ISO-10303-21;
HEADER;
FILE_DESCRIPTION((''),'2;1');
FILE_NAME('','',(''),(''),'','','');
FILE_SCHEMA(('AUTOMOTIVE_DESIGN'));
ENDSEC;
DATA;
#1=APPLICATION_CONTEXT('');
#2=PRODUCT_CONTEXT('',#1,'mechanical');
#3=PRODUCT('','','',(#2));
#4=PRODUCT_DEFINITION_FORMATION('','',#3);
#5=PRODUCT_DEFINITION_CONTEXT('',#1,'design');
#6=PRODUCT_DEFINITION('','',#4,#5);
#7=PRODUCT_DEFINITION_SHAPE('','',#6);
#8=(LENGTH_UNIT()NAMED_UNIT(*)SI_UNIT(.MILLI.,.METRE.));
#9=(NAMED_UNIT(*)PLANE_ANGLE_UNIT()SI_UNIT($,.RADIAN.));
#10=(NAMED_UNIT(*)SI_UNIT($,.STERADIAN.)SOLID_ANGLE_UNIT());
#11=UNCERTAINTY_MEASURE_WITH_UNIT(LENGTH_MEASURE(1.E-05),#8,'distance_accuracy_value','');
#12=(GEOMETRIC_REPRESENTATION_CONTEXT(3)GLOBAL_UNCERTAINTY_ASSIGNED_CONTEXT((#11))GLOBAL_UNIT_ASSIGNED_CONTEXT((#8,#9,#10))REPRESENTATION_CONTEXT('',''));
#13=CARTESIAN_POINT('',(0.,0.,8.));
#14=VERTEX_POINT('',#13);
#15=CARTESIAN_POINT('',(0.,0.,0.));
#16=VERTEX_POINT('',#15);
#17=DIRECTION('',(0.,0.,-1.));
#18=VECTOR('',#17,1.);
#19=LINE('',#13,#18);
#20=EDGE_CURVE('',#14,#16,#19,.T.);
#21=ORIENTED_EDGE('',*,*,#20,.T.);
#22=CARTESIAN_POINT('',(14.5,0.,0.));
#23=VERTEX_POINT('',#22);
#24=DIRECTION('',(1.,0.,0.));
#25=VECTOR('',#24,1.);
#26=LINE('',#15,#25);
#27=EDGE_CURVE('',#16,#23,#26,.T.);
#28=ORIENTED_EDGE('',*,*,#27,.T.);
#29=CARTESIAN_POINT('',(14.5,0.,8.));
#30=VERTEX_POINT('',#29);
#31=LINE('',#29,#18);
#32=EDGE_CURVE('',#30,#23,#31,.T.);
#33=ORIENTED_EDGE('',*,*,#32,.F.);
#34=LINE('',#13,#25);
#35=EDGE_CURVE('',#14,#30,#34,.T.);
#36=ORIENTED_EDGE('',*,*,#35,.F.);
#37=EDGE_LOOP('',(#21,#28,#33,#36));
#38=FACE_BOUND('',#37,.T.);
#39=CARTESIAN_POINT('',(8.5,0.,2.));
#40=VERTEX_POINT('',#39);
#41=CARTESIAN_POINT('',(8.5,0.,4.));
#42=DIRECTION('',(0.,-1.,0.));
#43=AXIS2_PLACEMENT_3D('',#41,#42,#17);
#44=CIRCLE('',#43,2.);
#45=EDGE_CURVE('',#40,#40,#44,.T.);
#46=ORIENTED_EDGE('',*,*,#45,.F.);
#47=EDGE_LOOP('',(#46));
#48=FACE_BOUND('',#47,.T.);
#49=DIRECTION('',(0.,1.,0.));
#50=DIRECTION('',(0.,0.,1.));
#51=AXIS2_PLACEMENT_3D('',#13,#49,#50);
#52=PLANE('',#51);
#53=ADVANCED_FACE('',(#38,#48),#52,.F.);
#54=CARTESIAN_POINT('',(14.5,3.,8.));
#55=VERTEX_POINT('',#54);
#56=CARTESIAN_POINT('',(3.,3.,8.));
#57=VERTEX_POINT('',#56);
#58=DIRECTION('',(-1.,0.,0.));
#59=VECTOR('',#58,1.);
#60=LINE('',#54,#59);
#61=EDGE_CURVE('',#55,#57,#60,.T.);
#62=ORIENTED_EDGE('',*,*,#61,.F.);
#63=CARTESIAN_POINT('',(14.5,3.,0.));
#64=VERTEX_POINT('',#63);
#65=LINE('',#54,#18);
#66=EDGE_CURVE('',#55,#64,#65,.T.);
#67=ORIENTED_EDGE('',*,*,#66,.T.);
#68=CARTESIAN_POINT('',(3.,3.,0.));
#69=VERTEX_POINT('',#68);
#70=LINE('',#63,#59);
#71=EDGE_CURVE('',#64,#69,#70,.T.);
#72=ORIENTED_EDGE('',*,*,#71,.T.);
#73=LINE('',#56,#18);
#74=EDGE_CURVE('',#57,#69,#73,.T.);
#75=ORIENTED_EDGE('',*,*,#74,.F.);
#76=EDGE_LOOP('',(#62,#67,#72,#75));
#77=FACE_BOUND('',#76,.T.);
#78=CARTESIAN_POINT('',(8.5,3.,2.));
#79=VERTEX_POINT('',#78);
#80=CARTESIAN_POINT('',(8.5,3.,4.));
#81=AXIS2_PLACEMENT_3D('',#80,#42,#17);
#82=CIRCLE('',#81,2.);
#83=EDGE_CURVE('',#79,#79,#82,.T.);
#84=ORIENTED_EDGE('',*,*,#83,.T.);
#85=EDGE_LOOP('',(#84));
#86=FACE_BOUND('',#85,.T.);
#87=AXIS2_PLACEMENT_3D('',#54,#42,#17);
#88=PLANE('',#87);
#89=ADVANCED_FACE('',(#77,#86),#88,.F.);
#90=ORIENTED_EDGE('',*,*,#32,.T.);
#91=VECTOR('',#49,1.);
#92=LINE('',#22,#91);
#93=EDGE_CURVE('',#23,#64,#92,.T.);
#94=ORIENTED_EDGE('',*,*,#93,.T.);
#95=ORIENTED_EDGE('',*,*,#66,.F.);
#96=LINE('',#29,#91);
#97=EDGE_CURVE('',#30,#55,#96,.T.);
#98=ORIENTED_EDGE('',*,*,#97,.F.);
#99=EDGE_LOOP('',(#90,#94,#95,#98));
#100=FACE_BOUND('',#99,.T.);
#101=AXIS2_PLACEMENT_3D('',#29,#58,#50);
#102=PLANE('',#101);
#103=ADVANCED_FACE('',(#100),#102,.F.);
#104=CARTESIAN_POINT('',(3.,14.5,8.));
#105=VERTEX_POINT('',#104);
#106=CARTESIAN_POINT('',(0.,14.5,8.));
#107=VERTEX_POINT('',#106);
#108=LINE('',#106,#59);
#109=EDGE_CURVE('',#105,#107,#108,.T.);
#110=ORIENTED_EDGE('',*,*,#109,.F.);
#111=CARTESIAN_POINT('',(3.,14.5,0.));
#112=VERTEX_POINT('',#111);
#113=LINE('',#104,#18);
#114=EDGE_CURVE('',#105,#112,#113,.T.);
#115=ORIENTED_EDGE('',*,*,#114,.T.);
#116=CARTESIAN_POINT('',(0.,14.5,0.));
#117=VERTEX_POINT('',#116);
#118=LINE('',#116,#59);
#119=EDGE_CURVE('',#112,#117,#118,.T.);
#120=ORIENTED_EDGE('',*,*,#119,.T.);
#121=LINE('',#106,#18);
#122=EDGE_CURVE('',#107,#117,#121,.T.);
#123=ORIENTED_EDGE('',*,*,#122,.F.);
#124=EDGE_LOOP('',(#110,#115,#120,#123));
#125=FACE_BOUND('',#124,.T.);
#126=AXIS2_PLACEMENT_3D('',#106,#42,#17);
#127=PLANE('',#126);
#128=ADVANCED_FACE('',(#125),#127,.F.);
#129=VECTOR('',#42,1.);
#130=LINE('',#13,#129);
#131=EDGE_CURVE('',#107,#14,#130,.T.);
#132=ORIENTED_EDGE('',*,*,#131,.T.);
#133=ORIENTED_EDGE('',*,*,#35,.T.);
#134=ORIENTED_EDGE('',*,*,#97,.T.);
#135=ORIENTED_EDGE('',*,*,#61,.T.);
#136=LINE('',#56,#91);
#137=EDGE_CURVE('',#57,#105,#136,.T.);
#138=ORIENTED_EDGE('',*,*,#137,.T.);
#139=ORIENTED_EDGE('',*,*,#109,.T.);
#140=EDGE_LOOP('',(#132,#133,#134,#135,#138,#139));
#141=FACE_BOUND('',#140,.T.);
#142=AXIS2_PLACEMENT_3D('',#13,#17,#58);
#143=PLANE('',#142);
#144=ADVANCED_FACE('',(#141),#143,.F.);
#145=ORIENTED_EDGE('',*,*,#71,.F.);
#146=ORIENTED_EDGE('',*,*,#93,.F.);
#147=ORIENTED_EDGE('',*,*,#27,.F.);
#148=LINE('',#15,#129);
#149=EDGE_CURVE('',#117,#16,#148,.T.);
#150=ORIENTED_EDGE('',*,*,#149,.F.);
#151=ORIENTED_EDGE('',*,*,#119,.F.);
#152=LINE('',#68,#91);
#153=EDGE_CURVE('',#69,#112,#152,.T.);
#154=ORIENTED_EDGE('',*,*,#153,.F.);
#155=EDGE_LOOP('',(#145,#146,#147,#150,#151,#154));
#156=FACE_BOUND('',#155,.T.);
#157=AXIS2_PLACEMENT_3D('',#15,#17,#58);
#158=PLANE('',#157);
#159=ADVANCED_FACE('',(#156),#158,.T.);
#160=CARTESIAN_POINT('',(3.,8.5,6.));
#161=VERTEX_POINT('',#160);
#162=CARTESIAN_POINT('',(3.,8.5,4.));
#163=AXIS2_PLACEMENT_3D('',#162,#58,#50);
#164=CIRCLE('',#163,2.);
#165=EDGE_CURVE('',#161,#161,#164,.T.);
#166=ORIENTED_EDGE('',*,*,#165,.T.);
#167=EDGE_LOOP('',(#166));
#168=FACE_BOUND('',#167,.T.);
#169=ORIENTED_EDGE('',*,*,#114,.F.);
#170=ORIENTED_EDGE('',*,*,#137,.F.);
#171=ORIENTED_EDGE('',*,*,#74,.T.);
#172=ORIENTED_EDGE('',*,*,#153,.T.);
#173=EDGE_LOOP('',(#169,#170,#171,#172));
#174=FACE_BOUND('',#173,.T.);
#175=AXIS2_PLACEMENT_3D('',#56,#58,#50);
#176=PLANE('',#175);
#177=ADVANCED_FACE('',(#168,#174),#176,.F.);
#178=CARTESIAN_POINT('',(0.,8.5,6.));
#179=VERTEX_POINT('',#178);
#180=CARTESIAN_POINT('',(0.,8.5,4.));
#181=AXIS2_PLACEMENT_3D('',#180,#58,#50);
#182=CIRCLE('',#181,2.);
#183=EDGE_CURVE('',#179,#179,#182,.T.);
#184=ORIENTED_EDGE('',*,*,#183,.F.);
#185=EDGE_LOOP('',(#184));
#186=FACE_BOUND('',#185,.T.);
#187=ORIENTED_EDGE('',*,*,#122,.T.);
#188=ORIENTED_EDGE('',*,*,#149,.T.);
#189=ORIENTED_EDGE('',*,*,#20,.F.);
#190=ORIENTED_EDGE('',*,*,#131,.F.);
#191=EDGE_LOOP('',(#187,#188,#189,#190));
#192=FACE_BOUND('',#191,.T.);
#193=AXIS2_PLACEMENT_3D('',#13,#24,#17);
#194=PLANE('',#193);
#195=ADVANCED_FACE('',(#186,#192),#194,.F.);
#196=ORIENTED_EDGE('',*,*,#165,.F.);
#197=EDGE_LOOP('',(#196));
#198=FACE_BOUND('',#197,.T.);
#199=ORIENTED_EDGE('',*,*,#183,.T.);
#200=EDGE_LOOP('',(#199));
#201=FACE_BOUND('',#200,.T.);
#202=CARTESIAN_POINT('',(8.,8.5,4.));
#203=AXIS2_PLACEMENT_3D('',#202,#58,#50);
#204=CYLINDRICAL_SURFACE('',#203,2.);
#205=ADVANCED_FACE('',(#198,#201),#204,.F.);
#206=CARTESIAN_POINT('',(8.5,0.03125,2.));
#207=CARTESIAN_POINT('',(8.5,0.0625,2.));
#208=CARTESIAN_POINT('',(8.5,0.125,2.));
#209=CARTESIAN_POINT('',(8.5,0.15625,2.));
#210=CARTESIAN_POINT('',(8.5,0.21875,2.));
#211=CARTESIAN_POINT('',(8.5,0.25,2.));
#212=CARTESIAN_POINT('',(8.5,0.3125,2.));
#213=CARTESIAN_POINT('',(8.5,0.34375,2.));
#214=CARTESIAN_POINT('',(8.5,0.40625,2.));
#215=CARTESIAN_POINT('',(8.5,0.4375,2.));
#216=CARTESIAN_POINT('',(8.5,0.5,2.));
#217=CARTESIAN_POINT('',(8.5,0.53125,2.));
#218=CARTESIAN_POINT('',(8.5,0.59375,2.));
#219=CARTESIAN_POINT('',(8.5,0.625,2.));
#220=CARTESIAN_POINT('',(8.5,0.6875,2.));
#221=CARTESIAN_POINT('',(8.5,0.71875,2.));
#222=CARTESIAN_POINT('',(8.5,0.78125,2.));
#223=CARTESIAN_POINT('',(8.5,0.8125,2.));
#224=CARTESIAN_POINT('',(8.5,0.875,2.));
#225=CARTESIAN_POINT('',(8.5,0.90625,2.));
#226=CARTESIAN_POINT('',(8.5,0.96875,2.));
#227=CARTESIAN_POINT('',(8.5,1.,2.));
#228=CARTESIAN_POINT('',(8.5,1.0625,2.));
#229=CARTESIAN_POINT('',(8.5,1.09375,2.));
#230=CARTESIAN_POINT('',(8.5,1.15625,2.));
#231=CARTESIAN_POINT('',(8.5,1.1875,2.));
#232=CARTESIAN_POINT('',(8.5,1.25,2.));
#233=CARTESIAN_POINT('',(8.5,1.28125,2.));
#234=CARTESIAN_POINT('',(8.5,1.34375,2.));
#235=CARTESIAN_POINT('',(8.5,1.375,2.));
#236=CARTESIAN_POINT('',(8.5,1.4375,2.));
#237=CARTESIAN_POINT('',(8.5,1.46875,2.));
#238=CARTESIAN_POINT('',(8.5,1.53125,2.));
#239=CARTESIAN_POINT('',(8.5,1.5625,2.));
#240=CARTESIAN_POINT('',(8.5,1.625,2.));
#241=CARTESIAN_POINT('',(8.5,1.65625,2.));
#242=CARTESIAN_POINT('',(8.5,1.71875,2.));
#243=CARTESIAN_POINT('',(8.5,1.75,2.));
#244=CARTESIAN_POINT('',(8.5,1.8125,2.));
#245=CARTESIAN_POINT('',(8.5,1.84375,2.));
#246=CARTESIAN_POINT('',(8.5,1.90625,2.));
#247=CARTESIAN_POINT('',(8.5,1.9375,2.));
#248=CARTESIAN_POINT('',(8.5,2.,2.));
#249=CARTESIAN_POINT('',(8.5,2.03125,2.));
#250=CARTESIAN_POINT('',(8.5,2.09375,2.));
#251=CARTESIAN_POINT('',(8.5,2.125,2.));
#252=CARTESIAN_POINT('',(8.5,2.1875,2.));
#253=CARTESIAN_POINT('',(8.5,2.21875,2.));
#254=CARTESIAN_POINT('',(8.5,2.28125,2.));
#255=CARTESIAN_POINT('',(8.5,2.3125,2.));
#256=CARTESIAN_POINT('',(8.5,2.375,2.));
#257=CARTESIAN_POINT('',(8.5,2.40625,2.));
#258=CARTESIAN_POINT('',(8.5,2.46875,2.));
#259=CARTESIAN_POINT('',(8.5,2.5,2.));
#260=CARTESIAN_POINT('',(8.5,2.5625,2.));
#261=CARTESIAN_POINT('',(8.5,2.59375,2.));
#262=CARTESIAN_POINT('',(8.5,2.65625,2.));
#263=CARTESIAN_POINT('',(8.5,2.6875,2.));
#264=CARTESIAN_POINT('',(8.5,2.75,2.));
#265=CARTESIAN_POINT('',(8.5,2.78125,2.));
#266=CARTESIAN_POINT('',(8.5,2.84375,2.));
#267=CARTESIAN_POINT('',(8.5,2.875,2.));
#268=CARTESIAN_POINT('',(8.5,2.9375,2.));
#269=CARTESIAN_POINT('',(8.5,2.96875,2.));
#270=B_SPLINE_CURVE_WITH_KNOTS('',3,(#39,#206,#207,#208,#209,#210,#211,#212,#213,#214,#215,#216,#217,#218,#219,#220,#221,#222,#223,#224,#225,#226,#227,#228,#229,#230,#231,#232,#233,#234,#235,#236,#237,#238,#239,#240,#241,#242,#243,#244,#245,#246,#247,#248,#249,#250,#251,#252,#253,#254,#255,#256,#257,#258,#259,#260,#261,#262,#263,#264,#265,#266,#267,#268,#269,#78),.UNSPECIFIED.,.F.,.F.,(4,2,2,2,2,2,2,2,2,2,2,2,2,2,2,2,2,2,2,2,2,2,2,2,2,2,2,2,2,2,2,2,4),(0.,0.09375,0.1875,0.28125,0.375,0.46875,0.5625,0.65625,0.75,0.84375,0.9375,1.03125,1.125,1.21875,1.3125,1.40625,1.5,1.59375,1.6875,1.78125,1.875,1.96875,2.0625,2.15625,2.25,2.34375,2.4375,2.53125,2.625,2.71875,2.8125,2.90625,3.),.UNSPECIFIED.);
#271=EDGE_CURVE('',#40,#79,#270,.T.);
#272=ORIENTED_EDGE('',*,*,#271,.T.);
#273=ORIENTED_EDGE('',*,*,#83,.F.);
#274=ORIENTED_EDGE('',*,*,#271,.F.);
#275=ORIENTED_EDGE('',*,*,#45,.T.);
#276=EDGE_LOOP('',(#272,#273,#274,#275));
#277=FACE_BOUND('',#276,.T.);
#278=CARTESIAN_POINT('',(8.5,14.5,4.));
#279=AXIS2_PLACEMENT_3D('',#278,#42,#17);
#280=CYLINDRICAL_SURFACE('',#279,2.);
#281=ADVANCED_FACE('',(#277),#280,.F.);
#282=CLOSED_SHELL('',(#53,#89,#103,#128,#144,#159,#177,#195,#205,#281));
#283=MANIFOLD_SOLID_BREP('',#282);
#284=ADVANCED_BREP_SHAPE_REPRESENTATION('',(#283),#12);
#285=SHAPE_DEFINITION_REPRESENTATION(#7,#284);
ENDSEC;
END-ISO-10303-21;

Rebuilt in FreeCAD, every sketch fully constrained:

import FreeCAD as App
import Part
import Sketcher
from FreeCAD import Vector
Q = App.Units.Quantity


def add_polygon(sketch, points):
    """Adds a closed chain of lines whose ends are joined by coincident constraints."""
    first, n = sketch.GeometryCount, len(points)
    for a, b in zip(points, points[1:] + points[:1]):
        sketch.addGeometry(Part.LineSegment(App.Vector(*a, 0), App.Vector(*b, 0)), False)
    for i in range(n):
        sketch.addConstraint(Sketcher.Constraint("Coincident", first + i, 2, first + (i + 1) % n, 1))

doc = App.newDocument("Part")
body = doc.addObject("PartDesign::Body", "Body")

# Sketch on XY plane
sketch1 = body.newObject("Sketcher::SketchObject", "Sketch")
sketch1.AttachmentSupport = (doc.getObject("XY_Plane"), [""])
sketch1.MapMode = "FlatFace"
add_polygon(sketch1, [(0, 0), (14.5, 0), (14.5, 3), (3, 3), (3, 14.5), (0, 14.5)])  # lines 0-5
sketch1.addConstraint(Sketcher.Constraint("Horizontal", 0))
sketch1.addConstraint(Sketcher.Constraint("Vertical", 1))
sketch1.addConstraint(Sketcher.Constraint("Horizontal", 2))
sketch1.addConstraint(Sketcher.Constraint("Vertical", 3))
sketch1.addConstraint(Sketcher.Constraint("Horizontal", 4))
sketch1.addConstraint(Sketcher.Constraint("Vertical", 5))
sketch1.addConstraint(Sketcher.Constraint("Coincident", 5, 2, -1, 1))
sketch1.addConstraint(Sketcher.Constraint("Equal", 4, 1))
sketch1.addConstraint(Sketcher.Constraint("Equal", 2, 3))
sketch1.addConstraint(Sketcher.Constraint("DistanceX", 4, 2, 4, 1, Q("3 mm")))
sketch1.addConstraint(Sketcher.Constraint("DistanceX", 0, 1, 0, 2, Q("14.5 mm")))
pad1 = body.newObject("PartDesign::Pad", "Pad")
pad1.Profile = sketch1
pad1.Length = 8

# Sketch on XZ plane
sketch2 = body.newObject("Sketcher::SketchObject", "Sketch001")
sketch2.AttachmentSupport = (doc.getObject("XZ_Plane"), [""])
sketch2.MapMode = "FlatFace"
sketch2.addGeometry(Part.Circle(Vector(8.5, 4, 0), Vector(0, 0, 1), 2), False)
sketch2.addConstraint(Sketcher.Constraint("Diameter", 0, Q("4 mm")))
sketch2.addConstraint(Sketcher.Constraint("DistanceY", -1, 1, 0, 3, Q("4 mm")))
sketch2.addConstraint(Sketcher.Constraint("DistanceX", -1, 1, 0, 3, Q("8.5 mm")))
pocket1 = body.newObject("PartDesign::Pocket", "Pocket")
pocket1.Profile = sketch2
pocket1.Type = "ThroughAll"

# Sketch on YZ plane
sketch3 = body.newObject("Sketcher::SketchObject", "Sketch002")
sketch3.AttachmentSupport = (doc.getObject("YZ_Plane"), [""])
sketch3.MapMode = "FlatFace"
sketch3.addGeometry(Part.Circle(Vector(8.5, 4, 0), Vector(0, 0, 1), 2), False)
sketch3.addConstraint(Sketcher.Constraint("Diameter", 0, Q("4 mm")))
sketch3.addConstraint(Sketcher.Constraint("DistanceY", -1, 1, 0, 3, Q("4 mm")))
sketch3.addConstraint(Sketcher.Constraint("DistanceX", -1, 1, 0, 3, Q("8.5 mm")))
pocket2 = body.newObject("PartDesign::Pocket", "Pocket001")
pocket2.Profile = sketch3
pocket2.Length = 8
pocket2.Reversed = True

doc.recompute()
